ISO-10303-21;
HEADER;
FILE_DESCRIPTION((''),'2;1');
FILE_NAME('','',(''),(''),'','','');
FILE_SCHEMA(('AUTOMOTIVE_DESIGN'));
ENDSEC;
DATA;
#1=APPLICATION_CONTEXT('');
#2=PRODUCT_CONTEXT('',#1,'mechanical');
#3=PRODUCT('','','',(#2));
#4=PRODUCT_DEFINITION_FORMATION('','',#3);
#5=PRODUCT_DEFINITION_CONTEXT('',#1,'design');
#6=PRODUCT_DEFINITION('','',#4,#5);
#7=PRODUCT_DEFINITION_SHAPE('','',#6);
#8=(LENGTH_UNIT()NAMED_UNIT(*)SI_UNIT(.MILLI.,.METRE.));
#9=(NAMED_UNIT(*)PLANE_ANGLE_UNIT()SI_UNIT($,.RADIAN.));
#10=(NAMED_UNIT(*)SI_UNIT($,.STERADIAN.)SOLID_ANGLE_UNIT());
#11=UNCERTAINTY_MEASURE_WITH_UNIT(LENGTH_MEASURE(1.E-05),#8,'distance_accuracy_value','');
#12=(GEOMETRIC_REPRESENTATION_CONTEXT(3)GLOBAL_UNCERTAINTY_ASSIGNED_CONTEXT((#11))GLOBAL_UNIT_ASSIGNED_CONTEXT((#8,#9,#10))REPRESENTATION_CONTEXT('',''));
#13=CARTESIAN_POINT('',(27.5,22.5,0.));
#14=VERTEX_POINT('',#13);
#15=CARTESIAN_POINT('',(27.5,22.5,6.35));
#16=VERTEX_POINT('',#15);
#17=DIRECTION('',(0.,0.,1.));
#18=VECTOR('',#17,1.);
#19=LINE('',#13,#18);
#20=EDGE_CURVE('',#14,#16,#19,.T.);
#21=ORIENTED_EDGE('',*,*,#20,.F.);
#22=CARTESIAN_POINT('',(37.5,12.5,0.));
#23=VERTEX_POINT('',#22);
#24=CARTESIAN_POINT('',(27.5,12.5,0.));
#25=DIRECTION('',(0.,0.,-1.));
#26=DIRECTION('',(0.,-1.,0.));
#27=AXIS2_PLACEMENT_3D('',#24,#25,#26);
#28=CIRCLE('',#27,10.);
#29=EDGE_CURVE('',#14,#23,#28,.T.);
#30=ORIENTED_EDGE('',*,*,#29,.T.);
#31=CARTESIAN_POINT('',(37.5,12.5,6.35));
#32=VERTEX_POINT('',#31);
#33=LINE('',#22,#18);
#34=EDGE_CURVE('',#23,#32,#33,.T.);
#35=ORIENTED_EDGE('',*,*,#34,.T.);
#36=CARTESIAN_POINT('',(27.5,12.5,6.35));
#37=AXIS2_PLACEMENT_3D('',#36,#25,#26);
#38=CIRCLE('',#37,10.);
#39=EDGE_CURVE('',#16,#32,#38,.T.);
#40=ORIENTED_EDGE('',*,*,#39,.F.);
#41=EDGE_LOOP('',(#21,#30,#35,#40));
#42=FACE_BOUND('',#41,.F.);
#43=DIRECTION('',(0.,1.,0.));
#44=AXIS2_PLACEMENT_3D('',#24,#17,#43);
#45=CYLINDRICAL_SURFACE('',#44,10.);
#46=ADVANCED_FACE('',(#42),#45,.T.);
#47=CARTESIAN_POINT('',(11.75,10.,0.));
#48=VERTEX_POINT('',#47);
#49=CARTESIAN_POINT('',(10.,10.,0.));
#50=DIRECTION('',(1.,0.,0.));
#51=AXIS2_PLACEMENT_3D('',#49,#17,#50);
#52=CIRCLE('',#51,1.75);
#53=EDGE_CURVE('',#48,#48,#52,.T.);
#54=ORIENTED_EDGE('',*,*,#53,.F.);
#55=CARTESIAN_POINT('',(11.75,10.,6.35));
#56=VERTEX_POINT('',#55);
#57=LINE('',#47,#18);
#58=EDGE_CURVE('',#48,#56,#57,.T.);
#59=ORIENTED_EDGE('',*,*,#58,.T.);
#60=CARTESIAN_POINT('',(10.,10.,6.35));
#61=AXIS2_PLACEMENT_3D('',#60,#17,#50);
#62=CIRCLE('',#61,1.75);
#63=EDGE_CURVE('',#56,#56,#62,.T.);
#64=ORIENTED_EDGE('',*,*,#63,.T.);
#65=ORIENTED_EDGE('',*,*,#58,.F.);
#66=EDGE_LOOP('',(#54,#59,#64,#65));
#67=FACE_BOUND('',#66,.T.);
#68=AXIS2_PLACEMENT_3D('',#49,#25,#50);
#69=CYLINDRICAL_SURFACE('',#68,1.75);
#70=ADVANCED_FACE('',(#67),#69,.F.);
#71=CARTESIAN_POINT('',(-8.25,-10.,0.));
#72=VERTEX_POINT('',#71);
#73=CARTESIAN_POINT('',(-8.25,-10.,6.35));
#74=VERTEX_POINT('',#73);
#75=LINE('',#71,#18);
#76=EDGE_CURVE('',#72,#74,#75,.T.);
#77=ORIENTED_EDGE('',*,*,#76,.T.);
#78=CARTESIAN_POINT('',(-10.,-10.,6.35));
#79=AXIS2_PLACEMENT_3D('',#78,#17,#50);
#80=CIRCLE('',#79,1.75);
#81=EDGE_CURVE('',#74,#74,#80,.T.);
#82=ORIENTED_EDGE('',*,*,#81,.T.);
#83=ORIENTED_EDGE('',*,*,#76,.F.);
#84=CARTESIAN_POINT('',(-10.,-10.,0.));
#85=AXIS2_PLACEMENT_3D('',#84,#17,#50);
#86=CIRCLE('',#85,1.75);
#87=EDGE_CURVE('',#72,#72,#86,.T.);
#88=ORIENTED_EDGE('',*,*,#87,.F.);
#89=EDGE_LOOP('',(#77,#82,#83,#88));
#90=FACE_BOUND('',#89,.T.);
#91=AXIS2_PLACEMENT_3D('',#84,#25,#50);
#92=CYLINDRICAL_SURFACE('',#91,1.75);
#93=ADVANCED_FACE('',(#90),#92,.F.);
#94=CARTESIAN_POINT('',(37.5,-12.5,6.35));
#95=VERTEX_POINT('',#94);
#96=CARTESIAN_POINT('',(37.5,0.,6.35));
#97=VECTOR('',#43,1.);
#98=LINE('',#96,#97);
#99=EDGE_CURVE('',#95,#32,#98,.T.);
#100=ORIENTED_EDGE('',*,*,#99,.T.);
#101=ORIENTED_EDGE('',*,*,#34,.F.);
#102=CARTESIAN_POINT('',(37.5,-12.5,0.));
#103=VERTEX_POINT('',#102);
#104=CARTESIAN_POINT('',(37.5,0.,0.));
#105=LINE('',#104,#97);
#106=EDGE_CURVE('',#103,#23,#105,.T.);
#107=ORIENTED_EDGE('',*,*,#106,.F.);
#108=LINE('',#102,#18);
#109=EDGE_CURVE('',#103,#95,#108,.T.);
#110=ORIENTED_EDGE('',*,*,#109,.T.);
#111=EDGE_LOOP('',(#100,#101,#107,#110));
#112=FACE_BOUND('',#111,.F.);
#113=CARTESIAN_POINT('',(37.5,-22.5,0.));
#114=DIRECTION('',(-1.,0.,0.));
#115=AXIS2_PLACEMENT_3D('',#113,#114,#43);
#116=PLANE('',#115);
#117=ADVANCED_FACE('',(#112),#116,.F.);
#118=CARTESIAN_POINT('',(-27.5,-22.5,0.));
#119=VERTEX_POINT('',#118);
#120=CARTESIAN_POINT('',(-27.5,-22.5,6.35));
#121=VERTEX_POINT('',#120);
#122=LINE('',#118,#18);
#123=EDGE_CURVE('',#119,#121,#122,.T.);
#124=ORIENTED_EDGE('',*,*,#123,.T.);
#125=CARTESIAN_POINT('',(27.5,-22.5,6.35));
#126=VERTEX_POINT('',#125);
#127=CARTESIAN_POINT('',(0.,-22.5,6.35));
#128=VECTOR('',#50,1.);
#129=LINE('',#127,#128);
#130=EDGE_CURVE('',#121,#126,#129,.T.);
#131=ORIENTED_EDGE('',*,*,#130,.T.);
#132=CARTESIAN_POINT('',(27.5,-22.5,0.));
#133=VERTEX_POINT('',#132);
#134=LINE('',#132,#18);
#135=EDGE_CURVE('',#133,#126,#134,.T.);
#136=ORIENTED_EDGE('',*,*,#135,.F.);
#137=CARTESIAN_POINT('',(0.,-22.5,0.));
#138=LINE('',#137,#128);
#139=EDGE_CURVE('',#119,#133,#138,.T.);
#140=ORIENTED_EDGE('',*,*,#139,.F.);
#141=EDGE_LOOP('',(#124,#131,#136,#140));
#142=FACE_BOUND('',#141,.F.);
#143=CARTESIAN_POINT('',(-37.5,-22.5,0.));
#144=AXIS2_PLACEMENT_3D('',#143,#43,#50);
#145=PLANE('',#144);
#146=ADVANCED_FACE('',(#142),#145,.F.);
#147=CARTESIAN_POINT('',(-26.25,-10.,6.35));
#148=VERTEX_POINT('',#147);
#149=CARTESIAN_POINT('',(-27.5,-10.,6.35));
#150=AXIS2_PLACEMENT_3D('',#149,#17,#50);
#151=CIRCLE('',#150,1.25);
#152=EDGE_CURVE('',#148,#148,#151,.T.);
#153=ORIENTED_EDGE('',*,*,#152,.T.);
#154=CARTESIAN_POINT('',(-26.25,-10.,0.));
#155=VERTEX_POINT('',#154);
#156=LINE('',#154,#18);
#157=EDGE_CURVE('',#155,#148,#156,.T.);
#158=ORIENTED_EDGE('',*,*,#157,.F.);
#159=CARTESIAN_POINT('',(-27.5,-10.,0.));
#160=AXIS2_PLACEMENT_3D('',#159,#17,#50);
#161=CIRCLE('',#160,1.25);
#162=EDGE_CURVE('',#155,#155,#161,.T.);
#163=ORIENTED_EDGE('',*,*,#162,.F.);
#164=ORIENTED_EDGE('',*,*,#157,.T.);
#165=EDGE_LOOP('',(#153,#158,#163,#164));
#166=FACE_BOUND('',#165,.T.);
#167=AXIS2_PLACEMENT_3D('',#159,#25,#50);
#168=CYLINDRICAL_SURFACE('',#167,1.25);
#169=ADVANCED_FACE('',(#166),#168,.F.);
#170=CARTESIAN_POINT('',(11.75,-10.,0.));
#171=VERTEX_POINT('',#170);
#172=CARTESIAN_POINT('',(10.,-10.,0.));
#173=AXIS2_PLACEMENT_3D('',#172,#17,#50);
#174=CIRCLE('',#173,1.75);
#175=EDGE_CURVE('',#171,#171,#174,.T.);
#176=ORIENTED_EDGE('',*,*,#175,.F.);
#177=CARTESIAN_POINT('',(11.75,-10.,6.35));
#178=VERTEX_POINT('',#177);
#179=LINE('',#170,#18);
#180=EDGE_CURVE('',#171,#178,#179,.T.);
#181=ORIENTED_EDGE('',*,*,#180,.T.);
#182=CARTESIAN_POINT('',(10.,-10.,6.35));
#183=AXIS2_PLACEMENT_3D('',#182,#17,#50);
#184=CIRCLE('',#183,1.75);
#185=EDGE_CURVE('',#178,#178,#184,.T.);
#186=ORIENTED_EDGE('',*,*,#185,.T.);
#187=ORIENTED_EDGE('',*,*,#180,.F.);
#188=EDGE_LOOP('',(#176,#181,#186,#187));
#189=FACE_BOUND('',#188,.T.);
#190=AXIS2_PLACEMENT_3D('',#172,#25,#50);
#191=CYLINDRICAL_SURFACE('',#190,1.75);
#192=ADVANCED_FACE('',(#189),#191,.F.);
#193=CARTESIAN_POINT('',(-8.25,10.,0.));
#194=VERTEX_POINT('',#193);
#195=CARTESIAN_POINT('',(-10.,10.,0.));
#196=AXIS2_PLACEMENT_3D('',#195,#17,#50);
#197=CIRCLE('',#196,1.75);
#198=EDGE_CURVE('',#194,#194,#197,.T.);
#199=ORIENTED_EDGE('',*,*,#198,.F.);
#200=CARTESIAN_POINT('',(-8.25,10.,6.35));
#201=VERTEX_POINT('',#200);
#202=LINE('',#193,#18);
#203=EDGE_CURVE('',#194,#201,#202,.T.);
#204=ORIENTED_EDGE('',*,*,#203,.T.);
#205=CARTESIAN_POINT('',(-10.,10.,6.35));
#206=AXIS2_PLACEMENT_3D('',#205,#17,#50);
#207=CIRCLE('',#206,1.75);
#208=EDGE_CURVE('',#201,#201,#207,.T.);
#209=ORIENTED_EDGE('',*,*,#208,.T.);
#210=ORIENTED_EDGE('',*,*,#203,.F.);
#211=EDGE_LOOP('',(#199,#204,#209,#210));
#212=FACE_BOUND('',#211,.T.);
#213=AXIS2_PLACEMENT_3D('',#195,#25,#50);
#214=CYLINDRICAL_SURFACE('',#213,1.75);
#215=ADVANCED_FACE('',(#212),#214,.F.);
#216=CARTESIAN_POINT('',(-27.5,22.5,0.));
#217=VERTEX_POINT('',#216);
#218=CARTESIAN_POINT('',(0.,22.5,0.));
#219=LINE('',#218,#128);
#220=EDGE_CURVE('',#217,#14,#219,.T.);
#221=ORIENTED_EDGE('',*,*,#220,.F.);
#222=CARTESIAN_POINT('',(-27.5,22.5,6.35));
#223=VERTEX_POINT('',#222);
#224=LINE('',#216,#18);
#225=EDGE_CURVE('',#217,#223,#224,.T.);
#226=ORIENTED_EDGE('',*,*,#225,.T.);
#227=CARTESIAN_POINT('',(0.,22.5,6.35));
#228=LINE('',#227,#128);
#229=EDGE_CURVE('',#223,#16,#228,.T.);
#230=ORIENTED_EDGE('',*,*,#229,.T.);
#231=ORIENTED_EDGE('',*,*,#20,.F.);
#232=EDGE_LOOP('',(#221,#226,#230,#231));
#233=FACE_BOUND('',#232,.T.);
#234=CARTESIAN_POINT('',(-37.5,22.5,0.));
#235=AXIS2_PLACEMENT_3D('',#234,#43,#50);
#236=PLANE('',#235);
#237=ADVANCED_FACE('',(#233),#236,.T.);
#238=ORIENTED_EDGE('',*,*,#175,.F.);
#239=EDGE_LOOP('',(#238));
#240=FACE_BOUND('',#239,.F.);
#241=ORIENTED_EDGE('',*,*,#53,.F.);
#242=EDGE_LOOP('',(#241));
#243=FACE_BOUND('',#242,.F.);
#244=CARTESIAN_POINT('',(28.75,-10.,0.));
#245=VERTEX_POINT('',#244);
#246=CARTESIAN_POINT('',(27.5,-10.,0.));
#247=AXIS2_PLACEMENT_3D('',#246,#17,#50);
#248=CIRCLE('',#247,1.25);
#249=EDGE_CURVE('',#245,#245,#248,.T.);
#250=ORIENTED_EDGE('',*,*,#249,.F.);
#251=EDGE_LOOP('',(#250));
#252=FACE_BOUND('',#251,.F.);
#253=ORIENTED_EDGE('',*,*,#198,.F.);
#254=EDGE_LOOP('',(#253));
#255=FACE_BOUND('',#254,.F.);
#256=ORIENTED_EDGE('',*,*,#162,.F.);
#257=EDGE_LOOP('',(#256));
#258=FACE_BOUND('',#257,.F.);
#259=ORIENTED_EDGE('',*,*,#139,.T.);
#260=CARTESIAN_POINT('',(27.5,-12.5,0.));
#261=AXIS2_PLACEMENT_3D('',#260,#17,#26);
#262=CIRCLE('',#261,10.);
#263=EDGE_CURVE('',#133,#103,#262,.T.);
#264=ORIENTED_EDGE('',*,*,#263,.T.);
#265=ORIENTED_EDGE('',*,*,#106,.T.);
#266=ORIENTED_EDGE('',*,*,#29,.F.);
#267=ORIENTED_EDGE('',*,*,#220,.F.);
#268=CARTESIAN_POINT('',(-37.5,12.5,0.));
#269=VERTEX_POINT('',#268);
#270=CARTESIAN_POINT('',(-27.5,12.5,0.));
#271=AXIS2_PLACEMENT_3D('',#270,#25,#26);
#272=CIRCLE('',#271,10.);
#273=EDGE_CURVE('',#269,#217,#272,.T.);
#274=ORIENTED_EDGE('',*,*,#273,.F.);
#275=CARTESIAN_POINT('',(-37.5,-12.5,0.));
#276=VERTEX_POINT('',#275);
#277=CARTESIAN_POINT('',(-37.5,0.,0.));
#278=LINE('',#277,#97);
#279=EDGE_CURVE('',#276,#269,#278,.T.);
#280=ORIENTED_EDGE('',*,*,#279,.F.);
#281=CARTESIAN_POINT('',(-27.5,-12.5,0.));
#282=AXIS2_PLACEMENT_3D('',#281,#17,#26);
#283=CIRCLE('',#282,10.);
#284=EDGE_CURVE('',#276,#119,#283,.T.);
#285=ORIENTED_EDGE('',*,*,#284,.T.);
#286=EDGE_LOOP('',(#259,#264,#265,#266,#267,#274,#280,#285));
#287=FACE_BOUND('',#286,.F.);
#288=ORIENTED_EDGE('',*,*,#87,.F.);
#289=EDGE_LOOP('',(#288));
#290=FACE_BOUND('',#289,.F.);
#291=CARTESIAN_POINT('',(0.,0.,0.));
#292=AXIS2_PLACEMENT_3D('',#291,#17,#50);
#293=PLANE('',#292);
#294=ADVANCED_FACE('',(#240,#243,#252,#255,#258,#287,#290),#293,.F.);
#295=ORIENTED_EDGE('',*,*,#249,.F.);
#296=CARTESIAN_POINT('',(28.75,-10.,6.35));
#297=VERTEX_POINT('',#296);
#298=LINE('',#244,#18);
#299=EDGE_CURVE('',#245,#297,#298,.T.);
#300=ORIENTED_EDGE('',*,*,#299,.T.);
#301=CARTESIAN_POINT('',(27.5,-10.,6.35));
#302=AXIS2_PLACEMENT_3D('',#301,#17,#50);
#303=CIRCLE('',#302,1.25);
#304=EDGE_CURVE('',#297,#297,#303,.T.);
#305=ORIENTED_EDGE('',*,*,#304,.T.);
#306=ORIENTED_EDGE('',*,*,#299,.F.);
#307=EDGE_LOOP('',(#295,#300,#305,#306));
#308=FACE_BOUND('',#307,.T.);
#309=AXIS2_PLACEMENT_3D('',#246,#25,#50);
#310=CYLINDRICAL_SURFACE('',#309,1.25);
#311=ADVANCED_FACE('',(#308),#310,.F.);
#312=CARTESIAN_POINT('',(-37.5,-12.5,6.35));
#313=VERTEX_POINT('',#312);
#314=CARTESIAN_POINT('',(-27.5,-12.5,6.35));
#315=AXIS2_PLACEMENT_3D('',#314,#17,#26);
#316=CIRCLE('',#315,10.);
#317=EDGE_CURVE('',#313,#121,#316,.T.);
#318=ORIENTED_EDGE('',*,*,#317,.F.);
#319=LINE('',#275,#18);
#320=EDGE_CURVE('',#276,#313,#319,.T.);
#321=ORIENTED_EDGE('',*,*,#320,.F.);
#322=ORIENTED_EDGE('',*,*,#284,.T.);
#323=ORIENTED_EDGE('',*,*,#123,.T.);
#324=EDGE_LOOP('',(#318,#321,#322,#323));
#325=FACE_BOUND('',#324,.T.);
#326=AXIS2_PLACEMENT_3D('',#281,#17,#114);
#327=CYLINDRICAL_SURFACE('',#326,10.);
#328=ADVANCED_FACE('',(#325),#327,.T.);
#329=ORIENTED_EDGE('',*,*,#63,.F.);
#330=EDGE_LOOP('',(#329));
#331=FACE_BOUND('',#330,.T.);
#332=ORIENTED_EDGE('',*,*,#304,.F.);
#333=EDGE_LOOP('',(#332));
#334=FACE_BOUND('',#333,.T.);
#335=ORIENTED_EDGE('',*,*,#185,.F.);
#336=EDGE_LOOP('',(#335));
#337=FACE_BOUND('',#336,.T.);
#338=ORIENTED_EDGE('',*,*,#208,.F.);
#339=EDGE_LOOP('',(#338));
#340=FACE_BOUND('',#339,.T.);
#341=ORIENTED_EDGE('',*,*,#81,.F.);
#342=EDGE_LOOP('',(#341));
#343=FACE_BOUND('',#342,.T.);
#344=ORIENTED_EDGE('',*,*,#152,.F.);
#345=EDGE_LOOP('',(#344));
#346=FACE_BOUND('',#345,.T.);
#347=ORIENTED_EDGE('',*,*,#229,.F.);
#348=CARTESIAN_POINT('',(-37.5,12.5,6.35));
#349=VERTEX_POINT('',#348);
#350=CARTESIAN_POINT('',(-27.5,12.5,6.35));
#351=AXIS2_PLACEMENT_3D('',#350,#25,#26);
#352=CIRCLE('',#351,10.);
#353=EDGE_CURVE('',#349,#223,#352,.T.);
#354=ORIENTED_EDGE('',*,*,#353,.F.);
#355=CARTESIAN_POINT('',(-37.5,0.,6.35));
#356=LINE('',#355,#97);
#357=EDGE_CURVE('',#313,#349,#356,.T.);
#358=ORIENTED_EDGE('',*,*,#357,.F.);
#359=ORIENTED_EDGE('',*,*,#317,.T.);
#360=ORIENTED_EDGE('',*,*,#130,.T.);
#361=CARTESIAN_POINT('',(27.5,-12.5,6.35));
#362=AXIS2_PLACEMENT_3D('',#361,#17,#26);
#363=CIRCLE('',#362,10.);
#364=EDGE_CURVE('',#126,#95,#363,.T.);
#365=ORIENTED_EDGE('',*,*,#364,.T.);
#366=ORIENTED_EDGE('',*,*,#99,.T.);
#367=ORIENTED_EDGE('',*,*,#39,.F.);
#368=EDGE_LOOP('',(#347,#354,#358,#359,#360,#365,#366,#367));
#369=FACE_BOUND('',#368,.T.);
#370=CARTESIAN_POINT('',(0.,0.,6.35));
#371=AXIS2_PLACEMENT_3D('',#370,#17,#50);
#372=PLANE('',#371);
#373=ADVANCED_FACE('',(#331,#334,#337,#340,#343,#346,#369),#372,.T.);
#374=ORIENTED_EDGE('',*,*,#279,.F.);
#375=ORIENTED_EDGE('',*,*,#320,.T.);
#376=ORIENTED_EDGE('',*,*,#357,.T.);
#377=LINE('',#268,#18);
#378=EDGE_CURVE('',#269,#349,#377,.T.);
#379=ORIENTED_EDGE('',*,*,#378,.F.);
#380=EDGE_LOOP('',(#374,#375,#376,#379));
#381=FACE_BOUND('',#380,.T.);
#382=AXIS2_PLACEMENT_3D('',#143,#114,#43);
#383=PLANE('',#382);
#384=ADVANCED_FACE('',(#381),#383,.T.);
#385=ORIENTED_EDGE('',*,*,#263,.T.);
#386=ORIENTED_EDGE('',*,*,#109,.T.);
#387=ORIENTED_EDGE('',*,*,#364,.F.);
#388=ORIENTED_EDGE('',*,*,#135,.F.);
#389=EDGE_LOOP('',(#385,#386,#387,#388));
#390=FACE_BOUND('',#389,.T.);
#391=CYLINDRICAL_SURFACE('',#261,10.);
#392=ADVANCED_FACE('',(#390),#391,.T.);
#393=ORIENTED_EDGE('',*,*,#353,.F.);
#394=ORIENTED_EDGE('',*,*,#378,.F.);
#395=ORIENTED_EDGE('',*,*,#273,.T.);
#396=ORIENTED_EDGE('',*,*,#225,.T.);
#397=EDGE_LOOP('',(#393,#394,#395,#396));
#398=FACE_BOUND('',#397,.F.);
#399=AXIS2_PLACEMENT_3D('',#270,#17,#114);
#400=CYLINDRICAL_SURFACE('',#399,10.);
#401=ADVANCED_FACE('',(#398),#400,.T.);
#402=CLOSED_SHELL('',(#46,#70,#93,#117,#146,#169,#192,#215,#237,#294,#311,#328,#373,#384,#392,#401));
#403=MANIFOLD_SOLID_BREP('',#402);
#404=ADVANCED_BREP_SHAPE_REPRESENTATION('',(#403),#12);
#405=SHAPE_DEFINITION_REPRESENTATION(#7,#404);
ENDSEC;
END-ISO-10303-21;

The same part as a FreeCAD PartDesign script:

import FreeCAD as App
import Part
import Sketcher
from FreeCAD import Vector
Q = App.Units.Quantity


def edges_at(feature, points):
    """Names of the edges that pass closest to the given points."""
    edges = feature.Shape.Edges
    near = lambda p: min(range(len(edges)), key=lambda i: edges[i].distToShape(Part.Vertex(*p))[0])
    return sorted({f"Edge{near(p) + 1}" for p in points})

doc = App.newDocument("Part")
params = doc.addObject("Spreadsheet::Sheet", "Params")
for row, (alias, value) in enumerate([
    ("sketch1_diameter", "2.5 mm"),
    ("sketch1_diameter2", "3.5 mm"),
    ("sketch1_width", "75 mm"),
    ("sketch1_height", "45 mm"),
    ("pad1_length", "6.35 mm"),
    ("fillet_radius", "10 mm"),
], start=1):
    params.set(f"A{row}", alias)
    params.set(f"B{row}", "=" + value)
    params.setAlias(f"B{row}", alias)

body = doc.addObject("PartDesign::Body", "Body")

sketch1 = body.newObject("Sketcher::SketchObject", "Sketch")
sketch1.AttachmentSupport = (doc.getObject("XY_Plane"), [""])
sketch1.MapMode = "FlatFace"
sketch1.addGeometry(Part.LineSegment(Vector(-37.5, 22.5, 0), Vector(-37.5, -22.5, 0)), False)
sketch1.addGeometry(Part.LineSegment(Vector(-37.5, -22.5, 0), Vector(37.5, -22.5, 0)), False)
sketch1.addGeometry(Part.LineSegment(Vector(37.5, -22.5, 0), Vector(37.5, 22.5, 0)), False)
sketch1.addGeometry(Part.LineSegment(Vector(37.5, 22.5, 0), Vector(-37.5, 22.5, 0)), False)
sketch1.addGeometry(Part.Circle(Vector(-27.5, -10, 0), Vector(0, 0, 1), 1.25), False)
sketch1.addGeometry(Part.Circle(Vector(-10, -10, 0), Vector(0, 0, 1), 1.75), False)
sketch1.addGeometry(Part.Circle(Vector(10, -10, 0), Vector(0, 0, 1), 1.75), False)
sketch1.addGeometry(Part.Circle(Vector(27.5, -10, 0), Vector(0, 0, 1), 1.25), False)
sketch1.addGeometry(Part.Circle(Vector(-10, 10, 0), Vector(0, 0, 1), 1.75), False)
sketch1.addGeometry(Part.Circle(Vector(10, 10, 0), Vector(0, 0, 1), 1.75), False)
sketch1.addConstraint(Sketcher.Constraint("Coincident", 0, 2, 1, 1))
sketch1.addConstraint(Sketcher.Constraint("Coincident", 1, 2, 2, 1))
sketch1.addConstraint(Sketcher.Constraint("Coincident", 2, 2, 3, 1))
sketch1.addConstraint(Sketcher.Constraint("Coincident", 3, 2, 0, 1))
sketch1.addConstraint(Sketcher.Constraint("Vertical", 0))
sketch1.addConstraint(Sketcher.Constraint("Horizontal", 1))
sketch1.addConstraint(Sketcher.Constraint("Vertical", 2))
sketch1.addConstraint(Sketcher.Constraint("Horizontal", 3))
sketch1.addConstraint(Sketcher.Constraint("Equal", 5, 6))
sketch1.addConstraint(Sketcher.Constraint("Equal", 4, 7))
sketch1.addConstraint(Sketcher.Constraint("Equal", 6, 8))
sketch1.addConstraint(Sketcher.Constraint("Equal", 8, 9))
sketch1.addConstraint(Sketcher.Constraint("Symmetric", 6, 3, 8, 3, -1, 1))
sketch1.addConstraint(Sketcher.Constraint("Symmetric", 5, 3, 9, 3, -1, 1))
sketch1.addConstraint(Sketcher.Constraint("Symmetric", 0, 2, 2, 2, -1, 1))
sketch1.addConstraint(Sketcher.Constraint("Symmetric", 5, 3, 6, 3, -2))
sketch1.addConstraint(Sketcher.Constraint("Symmetric", 4, 3, 7, 3, -2))
sketch1.addConstraint(Sketcher.Constraint("Horizontal", 4, 3, 5, 3))
sketch1.addConstraint(Sketcher.Constraint("Diameter", 4, Q("2.5 mm")))
sketch1.addConstraint(Sketcher.Constraint("Diameter", 5, Q("3.5 mm")))
sketch1.addConstraint(Sketcher.Constraint("DistanceX", 1, 1, 1, 2, Q("75 mm")))
sketch1.addConstraint(Sketcher.Constraint("DistanceY", 0, 2, 0, 1, Q("45 mm")))
sketch1.addConstraint(Sketcher.Constraint("DistanceY", 4, 3, -1, 1, Q("10 mm")))
sketch1.addConstraint(Sketcher.Constraint("DistanceX", 5, 3, -1, 1, Q("10 mm")))
sketch1.addConstraint(Sketcher.Constraint("DistanceX", 4, 3, 7, 3, Q("55 mm")))
sketch1.setExpression("Constraints[18]", "Params.sketch1_diameter")
sketch1.setExpression("Constraints[19]", "Params.sketch1_diameter2")
sketch1.setExpression("Constraints[20]", "Params.sketch1_width")
sketch1.setExpression("Constraints[21]", "Params.sketch1_height")
pad1 = body.newObject("PartDesign::Pad", "Pad")
pad1.Profile = sketch1
pad1.setExpression("Length", "Params.pad1_length")
doc.recompute()

fillet = body.newObject("PartDesign::Fillet", "Fillet")
fillet.Base = (pad1, edges_at(pad1, [
    (-37.5, 22.5, 3.175),
    (37.5, 22.5, 3.175),
    (37.5, -22.5, 3.175),
    (-37.5, -22.5, 3.175),
]))
fillet.setExpression("Radius", "Params.fillet_radius")

doc.recompute()
